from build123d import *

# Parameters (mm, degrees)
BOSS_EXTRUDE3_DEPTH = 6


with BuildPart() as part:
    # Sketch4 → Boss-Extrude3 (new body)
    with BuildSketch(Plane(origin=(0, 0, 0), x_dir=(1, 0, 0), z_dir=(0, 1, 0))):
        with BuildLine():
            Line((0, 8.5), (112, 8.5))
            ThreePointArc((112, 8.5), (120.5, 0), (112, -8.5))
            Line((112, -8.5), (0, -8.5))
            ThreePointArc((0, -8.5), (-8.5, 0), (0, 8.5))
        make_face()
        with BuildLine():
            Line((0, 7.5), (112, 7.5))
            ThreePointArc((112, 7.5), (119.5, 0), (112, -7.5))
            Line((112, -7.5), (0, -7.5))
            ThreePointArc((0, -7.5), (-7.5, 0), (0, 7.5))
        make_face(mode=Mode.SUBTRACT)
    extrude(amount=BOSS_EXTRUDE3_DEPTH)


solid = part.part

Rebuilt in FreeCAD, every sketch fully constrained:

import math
import FreeCAD as App
import Part
import Sketcher

V = App.Vector
Q = App.Units.Quantity

doc = App.newDocument("Part")
body = doc.addObject("PartDesign::Body", "Body")

sketch1 = doc.addObject("Sketcher::SketchObject", "Sketch")
body.addObject(sketch1)
sketch1.AttachmentSupport = (doc.XZ_Plane, [""])
sketch1.MapMode = "FlatFace"
sketch1.addGeometry([
    Part.LineSegment(V(112, -8, 0), V(0, -8, 0)),
    Part.ArcOfCircle(Part.Circle(V(0, 0, 0), V(0, 0, 1), 8), math.radians(90), math.radians(270)),
    Part.LineSegment(V(0, 8, 0), V(112, 8, 0)),
    Part.ArcOfCircle(Part.Circle(V(112, 0, 0), V(0, 0, 1), 8), math.radians(-90), math.radians(90)),
    Part.LineSegment(V(0, -8, 0), V(112, -8, 0)),
    Part.ArcOfCircle(Part.Circle(V(112, 0, 0), V(0, 0, 1), 8), math.radians(-90), math.radians(90)),
    Part.LineSegment(V(112, 8, 0), V(0, 8, 0)),
    Part.ArcOfCircle(Part.Circle(V(0, 0, 0), V(0, 0, 1), 8), math.radians(90), math.radians(270)),
], False)
sketch1.addConstraint([
    Sketcher.Constraint("Tangent", 0, 2, 1, 2),
    Sketcher.Constraint("Tangent", 1, 1, 2, 1),
    Sketcher.Constraint("Tangent", 2, 2, 3, 2),
    Sketcher.Constraint("Tangent", 3, 1, 0, 1),
    Sketcher.Constraint("Tangent", 4, 2, 5, 1),
    Sketcher.Constraint("Tangent", 5, 2, 6, 1),
    Sketcher.Constraint("Tangent", 6, 2, 7, 1),
    Sketcher.Constraint("Tangent", 7, 2, 4, 1),
    Sketcher.Constraint("Horizontal", 0),
    Sketcher.Constraint("Horizontal", 2),
    Sketcher.Constraint("Horizontal", 4),
    Sketcher.Constraint("Horizontal", 6),
    Sketcher.Constraint("Coincident", 1, 3, -1, 1),
    Sketcher.Constraint("Coincident", 7, 3, -1, 1),
    Sketcher.Constraint("Vertical", 5, 3, 2, 2),
    Sketcher.Constraint("Radius", 1, Q("8.5 mm")),
    Sketcher.Constraint("Radius", 5, Q("7.5 mm")),
    Sketcher.Constraint("DistanceX", 0, 2, 0, 1, Q("112 mm")),
])
pad1 = doc.addObject("PartDesign::Pad", "Pad")
body.addObject(pad1)
pad1.Profile = sketch1
pad1.Length = 6
pad1.Reversed = True

doc.recompute()
